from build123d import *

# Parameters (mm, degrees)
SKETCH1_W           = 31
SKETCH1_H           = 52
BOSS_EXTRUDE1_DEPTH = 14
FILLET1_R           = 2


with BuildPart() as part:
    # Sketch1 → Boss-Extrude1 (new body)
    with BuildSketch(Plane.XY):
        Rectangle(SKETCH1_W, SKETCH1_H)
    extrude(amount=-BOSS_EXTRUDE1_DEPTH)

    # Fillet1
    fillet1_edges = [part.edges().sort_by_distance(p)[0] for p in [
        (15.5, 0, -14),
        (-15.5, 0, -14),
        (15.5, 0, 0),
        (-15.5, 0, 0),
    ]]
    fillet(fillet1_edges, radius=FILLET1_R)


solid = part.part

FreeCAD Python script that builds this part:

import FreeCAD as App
import Part
import Sketcher

V = App.Vector
Q = App.Units.Quantity


def edges_at(feature, points):
    """Names of the edges that pass closest to the given points."""
    edges = feature.Shape.Edges
    near = lambda p: min(range(len(edges)), key=lambda i: edges[i].distToShape(Part.Vertex(*p))[0])
    return sorted({f"Edge{near(p) + 1}" for p in points})

doc = App.newDocument("Part")
body = doc.addObject("PartDesign::Body", "Body")

sketch1 = doc.addObject("Sketcher::SketchObject", "Sketch")
body.addObject(sketch1)
sketch1.AttachmentSupport = (doc.XY_Plane, [""])
sketch1.MapMode = "FlatFace"
sketch1.addGeometry(Part.LineSegment(V(-16, 26, 0), V(-16, -26, 0)), False)
sketch1.addGeometry(Part.LineSegment(V(-16, -26, 0), V(16, -26, 0)), False)
sketch1.addGeometry(Part.LineSegment(V(16, -26, 0), V(16, 26, 0)), False)
sketch1.addGeometry(Part.LineSegment(V(16, 26, 0), V(-16, 26, 0)), False)
sketch1.addConstraint(Sketcher.Constraint("Coincident", 0, 2, 1, 1))
sketch1.addConstraint(Sketcher.Constraint("Coincident", 1, 2, 2, 1))
sketch1.addConstraint(Sketcher.Constraint("Coincident", 2, 2, 3, 1))
sketch1.addConstraint(Sketcher.Constraint("Coincident", 3, 2, 0, 1))
sketch1.addConstraint(Sketcher.Constraint("Vertical", 0))
sketch1.addConstraint(Sketcher.Constraint("Horizontal", 1))
sketch1.addConstraint(Sketcher.Constraint("Vertical", 2))
sketch1.addConstraint(Sketcher.Constraint("Horizontal", 3))
sketch1.addConstraint(Sketcher.Constraint("Symmetric", 0, 2, 2, 2, -1, 1))
sketch1.addConstraint(Sketcher.Constraint("DistanceX", 1, 1, 1, 2, Q("31 mm")))
sketch1.addConstraint(Sketcher.Constraint("DistanceY", 0, 2, 0, 1, Q("52 mm")))
pad1 = doc.addObject("PartDesign::Pad", "Pad")
body.addObject(pad1)
pad1.Profile = sketch1
pad1.Length = 14
pad1.Reversed = True
doc.recompute()

fillet = doc.addObject("PartDesign::Fillet", "Fillet")
body.addObject(fillet)
fillet.Base = (pad1, edges_at(pad1, [
    (15.5, 0, -14),
    (-15.5, 0, -14),
    (15.5, 0, 0),
    (-15.5, 0, 0),
]))
fillet.Radius = 2

doc.recompute()
